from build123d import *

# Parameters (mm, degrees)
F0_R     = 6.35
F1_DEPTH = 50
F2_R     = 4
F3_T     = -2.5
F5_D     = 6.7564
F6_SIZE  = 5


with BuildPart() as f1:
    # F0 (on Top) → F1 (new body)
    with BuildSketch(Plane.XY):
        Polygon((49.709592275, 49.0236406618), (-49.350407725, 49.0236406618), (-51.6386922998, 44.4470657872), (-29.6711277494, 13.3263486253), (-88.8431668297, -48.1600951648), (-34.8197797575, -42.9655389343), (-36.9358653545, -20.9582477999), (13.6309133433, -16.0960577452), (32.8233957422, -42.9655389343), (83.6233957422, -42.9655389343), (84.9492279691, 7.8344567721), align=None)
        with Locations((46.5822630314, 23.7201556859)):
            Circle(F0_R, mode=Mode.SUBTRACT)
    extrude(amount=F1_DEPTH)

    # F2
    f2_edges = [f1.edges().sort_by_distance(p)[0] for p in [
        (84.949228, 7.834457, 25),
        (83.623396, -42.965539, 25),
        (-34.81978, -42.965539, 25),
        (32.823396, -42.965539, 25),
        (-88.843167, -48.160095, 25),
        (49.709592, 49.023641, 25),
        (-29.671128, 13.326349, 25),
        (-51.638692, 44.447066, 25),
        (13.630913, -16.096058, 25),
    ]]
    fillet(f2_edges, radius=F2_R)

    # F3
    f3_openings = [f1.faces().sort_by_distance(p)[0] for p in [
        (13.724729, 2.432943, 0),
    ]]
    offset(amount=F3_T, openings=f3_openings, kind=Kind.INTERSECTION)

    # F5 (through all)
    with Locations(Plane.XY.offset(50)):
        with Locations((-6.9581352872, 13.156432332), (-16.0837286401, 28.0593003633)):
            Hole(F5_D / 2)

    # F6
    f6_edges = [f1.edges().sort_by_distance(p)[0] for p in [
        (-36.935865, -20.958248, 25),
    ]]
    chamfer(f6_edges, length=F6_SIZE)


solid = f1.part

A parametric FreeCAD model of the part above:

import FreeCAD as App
import Part
import Sketcher
from FreeCAD import Vector
Q = App.Units.Quantity


def edges_at(feature, points):
    """Names of the edges that pass closest to the given points."""
    edges = feature.Shape.Edges
    near = lambda p: min(range(len(edges)), key=lambda i: edges[i].distToShape(Part.Vertex(*p))[0])
    return sorted({f"Edge{near(p) + 1}" for p in points})


def faces_at(feature, points):
    """Names of the faces that lie closest to the given points."""
    faces = feature.Shape.Faces
    near = lambda p: min(range(len(faces)), key=lambda i: faces[i].distToShape(Part.Vertex(*p))[0])
    return sorted({f"Face{near(p) + 1}" for p in points})

doc = App.newDocument("Part")
body = doc.addObject("PartDesign::Body", "Body")

sketch1 = body.newObject("Sketcher::SketchObject", "Sketch")
sketch1.AttachmentSupport = (doc.getObject("XY_Plane"), [""])
sketch1.MapMode = "FlatFace"
sketch1.addGeometry(Part.LineSegment(Vector(50, 49, 0), Vector(-49, 49, 0)), False)
sketch1.addGeometry(Part.LineSegment(Vector(-49, 49, 0), Vector(-52, 44, 0)), False)
sketch1.addGeometry(Part.LineSegment(Vector(-52, 44, 0), Vector(-30, 13, 0)), False)
sketch1.addGeometry(Part.LineSegment(Vector(-30, 13, 0), Vector(-89, -48, 0)), False)
sketch1.addGeometry(Part.LineSegment(Vector(-89, -48, 0), Vector(-35, -43, 0)), False)
sketch1.addGeometry(Part.LineSegment(Vector(-35, -43, 0), Vector(-37, -21, 0)), False)
sketch1.addGeometry(Part.LineSegment(Vector(-37, -21, 0), Vector(14, -16, 0)), False)
sketch1.addGeometry(Part.LineSegment(Vector(14, -16, 0), Vector(33, -43, 0)), False)
sketch1.addGeometry(Part.LineSegment(Vector(33, -43, 0), Vector(84, -43, 0)), False)
sketch1.addGeometry(Part.LineSegment(Vector(84, -43, 0), Vector(85, 8, 0)), False)
sketch1.addGeometry(Part.LineSegment(Vector(85, 8, 0), Vector(50, 49, 0)), False)
sketch1.addGeometry(Part.Circle(Vector(47, 24, 0), Vector(0, 0, 1), 6), False)
sketch1.addConstraint(Sketcher.Constraint("Coincident", 0, 2, 1, 1))
sketch1.addConstraint(Sketcher.Constraint("Coincident", 1, 2, 2, 1))
sketch1.addConstraint(Sketcher.Constraint("Coincident", 2, 2, 3, 1))
sketch1.addConstraint(Sketcher.Constraint("Coincident", 3, 2, 4, 1))
sketch1.addConstraint(Sketcher.Constraint("Coincident", 4, 2, 5, 1))
sketch1.addConstraint(Sketcher.Constraint("Coincident", 5, 2, 6, 1))
sketch1.addConstraint(Sketcher.Constraint("Coincident", 6, 2, 7, 1))
sketch1.addConstraint(Sketcher.Constraint("Coincident", 7, 2, 8, 1))
sketch1.addConstraint(Sketcher.Constraint("Coincident", 8, 2, 9, 1))
sketch1.addConstraint(Sketcher.Constraint("Coincident", 9, 2, 10, 1))
sketch1.addConstraint(Sketcher.Constraint("Coincident", 10, 2, 0, 1))
sketch1.addConstraint(Sketcher.Constraint("Horizontal", 0))
sketch1.addConstraint(Sketcher.Constraint("Horizontal", 8))
sketch1.addConstraint(Sketcher.Constraint("Perpendicular", 4, 5))
sketch1.addConstraint(Sketcher.Constraint("Perpendicular", 5, 6))
sketch1.addConstraint(Sketcher.Constraint("Horizontal", 4, 2, 7, 2))
sketch1.addConstraint(Sketcher.Constraint("Diameter", 11, Q("0.5 in")))
sketch1.addConstraint(Sketcher.Constraint("DistanceX", 8, 1, 8, 2, Q("2 in")))
sketch1.addConstraint(Sketcher.Constraint("Distance", 6, Q("2 in")))
sketch1.addConstraint(Sketcher.Constraint("DistanceX", 0, 2, 0, 1, Q("3.9 in")))
sketch1.addConstraint(Sketcher.Constraint("DistanceY", 8, 2, 9, 2, Q("1.9999998 in")))
sketch1.addConstraint(Sketcher.Constraint("Distance", 7, Q("1.3 in")))
sketch1.addConstraint(Sketcher.Constraint("DistanceY", 11, 3, 0, 2, Q("0.9962002 in")))
sketch1.addConstraint(Sketcher.Constraint("DistanceX", 3, 2, 5, 2, Q("51.907301 mm")))
sketch1.addConstraint(Sketcher.Constraint("DistanceY", 9, 2, 11, 3, Q("15.885699 mm")))
sketch1.addConstraint(Sketcher.Constraint("DistanceY", 6, 2, 10, 2, Q("65.119698 mm")))
sketch1.addConstraint(Sketcher.Constraint("Distance", 2, Q("38.092951 mm")))
sketch1.addConstraint(Sketcher.Constraint("Distance", 4, Q("54.272551 mm")))
sketch1.addConstraint(Sketcher.Constraint("DistanceY", -1, 1, 0, 2, Q("49.023641 mm")))
sketch1.addConstraint(Sketcher.Constraint("DistanceY", -1, 1, 2, 2, Q("13.326349 mm")))
sketch1.addConstraint(Sketcher.Constraint("DistanceX", 4, 2, -1, 1, Q("34.81978 mm")))
sketch1.addConstraint(Sketcher.Constraint("DistanceX", 0, 2, 11, 3, Q("95.932671 mm")))
sketch1.addConstraint(Sketcher.Constraint("DistanceY", 11, 3, 1, 2, Q("20.72691 mm")))
sketch1.addConstraint(Sketcher.Constraint("DistanceX", 0, 2, 2, 2, Q("19.67928 mm")))
sketch1.addConstraint(Sketcher.Constraint("DistanceX", 3, 2, 2, 2, Q("59.172039 mm")))
sketch1.addConstraint(Sketcher.Constraint("Distance", 9, Q("50.817294 mm")))
pad1 = body.newObject("PartDesign::Pad", "Pad")
pad1.Profile = sketch1
pad1.Length = 50
doc.recompute()

fillet = body.newObject("PartDesign::Fillet", "Fillet")
fillet.Base = (pad1, edges_at(pad1, [
    (84.949, 7.834, 25),
    (83.623, -42.966, 25),
    (-34.82, -42.966, 25),
    (32.823, -42.966, 25),
    (-88.843, -48.16, 25),
    (49.71, 49.024, 25),
    (-29.671, 13.326, 25),
    (-51.639, 44.447, 25),
    (13.631, -16.096, 25),
]))
fillet.Radius = 4
doc.recompute()

thickness = body.newObject("PartDesign::Thickness", "Thickness")
thickness.Base = (fillet, faces_at(fillet, [(1.223, 0.94, 0)]))
thickness.Value = 2.5
thickness.Reversed = True
thickness.Join = "Intersection"

sketch2 = body.newObject("Sketcher::SketchObject", "Sketch001")
sketch2.AttachmentSupport = (doc.getObject("XY_Plane"), [""])
sketch2.MapMode = "FlatFace"
sketch2.AttachmentOffset = App.Placement(Vector(0, 0, 50), App.Rotation())
sketch2.addGeometry(Part.Circle(Vector(-7, 13.2, 0), Vector(0, 0, 1), 3.4), False)
sketch2.addGeometry(Part.Circle(Vector(-16.1, 28.1, 0), Vector(0, 0, 1), 3.4), False)
sketch2.addConstraint(Sketcher.Constraint("Equal", 0, 1))
sketch2.addConstraint(Sketcher.Constraint("Diameter", 0, Q("0.266 in")))
sketch2.addConstraint(Sketcher.Constraint("DistanceY", -1, 1, 1, 3, Q("28.0593 mm")))
sketch2.addConstraint(Sketcher.Constraint("DistanceX", 1, 3, -1, 1, Q("16.083729 mm")))
sketch2.addConstraint(Sketcher.Constraint("DistanceY", 0, 3, 1, 3, Q("14.902868 mm")))
sketch2.addConstraint(Sketcher.Constraint("DistanceX", 0, 3, -1, 1, Q("6.958135 mm")))
doc.recompute()
hole = body.newObject("PartDesign::Hole", "Hole")
hole.Profile = sketch2
hole.ThreadType = "None"
hole.Diameter = Q("0.266 in")
hole.DepthType = "ThroughAll"
doc.recompute()

chamfer = body.newObject("PartDesign::Chamfer", "Chamfer")
chamfer.Base = (hole, edges_at(hole, [(-36.936, -20.958, 25)]))
chamfer.Size = 5

doc.recompute()
